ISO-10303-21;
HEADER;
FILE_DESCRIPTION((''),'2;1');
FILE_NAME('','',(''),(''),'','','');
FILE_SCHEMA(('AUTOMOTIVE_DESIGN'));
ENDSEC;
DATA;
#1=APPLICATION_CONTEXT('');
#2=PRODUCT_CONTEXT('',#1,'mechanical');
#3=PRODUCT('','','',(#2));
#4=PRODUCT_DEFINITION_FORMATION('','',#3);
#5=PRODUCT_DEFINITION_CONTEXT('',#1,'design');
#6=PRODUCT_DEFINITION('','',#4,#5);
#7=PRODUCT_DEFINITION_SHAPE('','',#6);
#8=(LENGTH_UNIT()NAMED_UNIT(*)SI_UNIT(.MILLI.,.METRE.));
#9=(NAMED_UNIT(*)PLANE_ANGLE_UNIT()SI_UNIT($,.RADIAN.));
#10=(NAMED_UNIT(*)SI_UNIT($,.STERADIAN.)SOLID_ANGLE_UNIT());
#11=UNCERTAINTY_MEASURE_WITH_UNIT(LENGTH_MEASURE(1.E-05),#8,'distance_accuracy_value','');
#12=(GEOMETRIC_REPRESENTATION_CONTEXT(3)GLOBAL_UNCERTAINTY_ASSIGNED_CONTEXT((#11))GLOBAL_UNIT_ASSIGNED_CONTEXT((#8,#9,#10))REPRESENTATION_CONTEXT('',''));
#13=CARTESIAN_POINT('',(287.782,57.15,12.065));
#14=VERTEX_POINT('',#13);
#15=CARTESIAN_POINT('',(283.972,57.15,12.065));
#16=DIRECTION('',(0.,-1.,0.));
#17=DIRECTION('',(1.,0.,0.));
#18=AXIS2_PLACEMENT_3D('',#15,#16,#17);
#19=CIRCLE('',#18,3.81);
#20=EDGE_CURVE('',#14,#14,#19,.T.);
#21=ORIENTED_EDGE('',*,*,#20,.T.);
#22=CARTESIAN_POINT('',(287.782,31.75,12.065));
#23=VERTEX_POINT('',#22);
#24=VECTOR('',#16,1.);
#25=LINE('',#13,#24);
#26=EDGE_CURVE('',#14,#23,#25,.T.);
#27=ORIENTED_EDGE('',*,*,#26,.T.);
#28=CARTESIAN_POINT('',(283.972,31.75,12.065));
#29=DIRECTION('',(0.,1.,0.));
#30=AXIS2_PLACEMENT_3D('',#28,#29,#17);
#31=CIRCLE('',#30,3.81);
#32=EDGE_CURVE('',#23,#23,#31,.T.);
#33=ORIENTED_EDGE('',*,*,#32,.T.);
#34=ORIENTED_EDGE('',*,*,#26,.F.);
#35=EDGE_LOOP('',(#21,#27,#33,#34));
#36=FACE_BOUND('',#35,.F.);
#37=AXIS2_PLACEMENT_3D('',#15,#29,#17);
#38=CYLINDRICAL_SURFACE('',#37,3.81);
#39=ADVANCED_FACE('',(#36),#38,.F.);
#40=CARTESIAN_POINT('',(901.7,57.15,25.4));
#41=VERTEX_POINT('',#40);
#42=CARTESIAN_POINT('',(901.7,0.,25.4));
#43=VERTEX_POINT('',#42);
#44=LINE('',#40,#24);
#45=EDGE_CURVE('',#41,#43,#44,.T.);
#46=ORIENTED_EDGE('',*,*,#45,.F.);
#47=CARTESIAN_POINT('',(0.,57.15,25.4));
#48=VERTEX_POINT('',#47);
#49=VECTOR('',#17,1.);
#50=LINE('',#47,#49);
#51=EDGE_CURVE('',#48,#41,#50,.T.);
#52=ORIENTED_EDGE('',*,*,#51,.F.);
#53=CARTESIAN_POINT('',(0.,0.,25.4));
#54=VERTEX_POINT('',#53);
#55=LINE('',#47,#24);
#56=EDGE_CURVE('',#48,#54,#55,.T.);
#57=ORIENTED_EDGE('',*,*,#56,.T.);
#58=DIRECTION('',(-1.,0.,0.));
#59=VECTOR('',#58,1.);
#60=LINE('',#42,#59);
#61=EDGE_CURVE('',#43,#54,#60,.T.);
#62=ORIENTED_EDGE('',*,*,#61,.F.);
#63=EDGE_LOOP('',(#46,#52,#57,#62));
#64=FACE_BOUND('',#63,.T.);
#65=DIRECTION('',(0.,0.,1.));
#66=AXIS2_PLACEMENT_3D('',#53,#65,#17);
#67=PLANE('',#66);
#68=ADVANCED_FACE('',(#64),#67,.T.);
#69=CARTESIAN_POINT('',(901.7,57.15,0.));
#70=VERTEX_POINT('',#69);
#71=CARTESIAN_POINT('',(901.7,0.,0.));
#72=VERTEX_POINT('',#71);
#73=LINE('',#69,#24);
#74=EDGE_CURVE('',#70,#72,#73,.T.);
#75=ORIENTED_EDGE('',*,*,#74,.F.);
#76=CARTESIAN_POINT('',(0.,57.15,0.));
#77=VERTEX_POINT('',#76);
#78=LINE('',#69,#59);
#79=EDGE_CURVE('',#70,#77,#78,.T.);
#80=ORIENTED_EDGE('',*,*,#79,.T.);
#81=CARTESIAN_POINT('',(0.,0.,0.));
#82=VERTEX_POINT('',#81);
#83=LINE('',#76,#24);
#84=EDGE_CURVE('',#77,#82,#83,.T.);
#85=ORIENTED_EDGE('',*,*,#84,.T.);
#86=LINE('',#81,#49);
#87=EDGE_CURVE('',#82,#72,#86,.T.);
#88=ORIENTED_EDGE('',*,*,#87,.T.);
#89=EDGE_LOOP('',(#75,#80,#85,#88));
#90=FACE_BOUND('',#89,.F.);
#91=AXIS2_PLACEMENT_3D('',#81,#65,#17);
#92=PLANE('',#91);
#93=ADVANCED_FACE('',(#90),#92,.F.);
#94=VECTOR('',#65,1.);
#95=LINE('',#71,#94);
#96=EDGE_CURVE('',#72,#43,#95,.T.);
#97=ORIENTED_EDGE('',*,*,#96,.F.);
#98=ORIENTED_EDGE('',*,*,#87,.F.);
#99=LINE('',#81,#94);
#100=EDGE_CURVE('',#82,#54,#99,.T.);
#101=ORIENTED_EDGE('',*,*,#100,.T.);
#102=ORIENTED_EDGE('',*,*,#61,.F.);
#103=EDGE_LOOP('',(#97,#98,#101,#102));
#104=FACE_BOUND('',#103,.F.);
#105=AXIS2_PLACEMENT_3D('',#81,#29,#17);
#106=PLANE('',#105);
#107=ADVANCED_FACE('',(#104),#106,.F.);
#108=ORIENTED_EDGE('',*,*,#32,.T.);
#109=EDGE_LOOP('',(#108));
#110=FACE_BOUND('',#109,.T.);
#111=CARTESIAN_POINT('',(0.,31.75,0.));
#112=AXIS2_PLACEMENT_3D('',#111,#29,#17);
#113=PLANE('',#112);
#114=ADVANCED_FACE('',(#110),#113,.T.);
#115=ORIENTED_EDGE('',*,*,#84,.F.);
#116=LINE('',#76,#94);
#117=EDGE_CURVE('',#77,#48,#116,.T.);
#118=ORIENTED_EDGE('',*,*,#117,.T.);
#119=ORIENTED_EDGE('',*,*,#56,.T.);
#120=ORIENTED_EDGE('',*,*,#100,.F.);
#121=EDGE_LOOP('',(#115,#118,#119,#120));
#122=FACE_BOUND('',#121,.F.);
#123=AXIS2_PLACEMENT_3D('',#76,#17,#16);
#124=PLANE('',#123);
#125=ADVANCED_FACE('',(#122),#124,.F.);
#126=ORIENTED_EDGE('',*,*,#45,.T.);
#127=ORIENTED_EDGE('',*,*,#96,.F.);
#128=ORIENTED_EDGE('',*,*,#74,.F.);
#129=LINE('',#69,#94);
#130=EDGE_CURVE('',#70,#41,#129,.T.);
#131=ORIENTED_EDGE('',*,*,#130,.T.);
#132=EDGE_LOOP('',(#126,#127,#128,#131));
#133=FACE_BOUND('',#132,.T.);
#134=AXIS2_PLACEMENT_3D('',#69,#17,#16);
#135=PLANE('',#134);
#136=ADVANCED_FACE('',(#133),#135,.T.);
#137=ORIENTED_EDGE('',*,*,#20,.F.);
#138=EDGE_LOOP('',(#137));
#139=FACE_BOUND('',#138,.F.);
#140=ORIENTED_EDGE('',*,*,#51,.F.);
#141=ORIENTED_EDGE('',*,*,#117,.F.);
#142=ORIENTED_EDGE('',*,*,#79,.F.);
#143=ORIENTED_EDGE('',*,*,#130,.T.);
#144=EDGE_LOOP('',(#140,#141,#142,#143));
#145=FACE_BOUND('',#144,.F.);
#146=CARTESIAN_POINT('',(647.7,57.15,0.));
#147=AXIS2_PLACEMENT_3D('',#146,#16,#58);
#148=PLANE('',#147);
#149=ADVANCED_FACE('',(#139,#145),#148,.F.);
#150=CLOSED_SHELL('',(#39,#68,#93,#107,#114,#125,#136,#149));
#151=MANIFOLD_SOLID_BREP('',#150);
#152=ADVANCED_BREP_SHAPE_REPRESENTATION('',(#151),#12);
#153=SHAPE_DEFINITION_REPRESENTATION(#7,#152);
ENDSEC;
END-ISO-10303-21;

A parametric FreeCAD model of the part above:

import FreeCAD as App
import Part
import Sketcher

V = App.Vector
Q = App.Units.Quantity


def add_polygon(sketch, points):
    """Adds a closed chain of lines whose ends are joined by coincident constraints."""
    first, n = sketch.GeometryCount, len(points)
    for a, b in zip(points, points[1:] + points[:1]):
        sketch.addGeometry(Part.LineSegment(App.Vector(*a, 0), App.Vector(*b, 0)), False)
    for i in range(n):
        sketch.addConstraint(Sketcher.Constraint("Coincident", first + i, 2, first + (i + 1) % n, 1))

doc = App.newDocument("Part")
params = doc.addObject("Spreadsheet::Sheet", "Params")
for row, (alias, value) in enumerate([
    ("sketch1_height", "2.25 in"),
    ("sketch1_width", "35.5 in"),
    ("pad1_length", "1 in"),
    ("sketch2_diameter", "0.3 in"),
    ("pocket1_length", "1 in"),
], start=1):
    params.set(f"A{row}", alias)
    params.set(f"B{row}", "=" + value)
    params.setAlias(f"B{row}", alias)

body = doc.addObject("PartDesign::Body", "Body")

# Sketch on XY plane
sketch1 = body.newObject("Sketcher::SketchObject", "Sketch")
sketch1.AttachmentSupport = (doc.getObject("XY_Plane"), [""])
sketch1.MapMode = "FlatFace"
add_polygon(sketch1, [(0, 57), (0, 0), (902, 0), (902, 57)])  # lines 0-3
sketch1.addConstraint([
    Sketcher.Constraint("Vertical", 0),
    Sketcher.Constraint("Horizontal", 1),
    Sketcher.Constraint("Vertical", 2),
    Sketcher.Constraint("Horizontal", 3),
    Sketcher.Constraint("Coincident", 0, 2, -1, 1),
    Sketcher.Constraint("DistanceY", 0, 2, 0, 1, Q("2.25 in")),
    Sketcher.Constraint("DistanceX", 1, 1, 1, 2, Q("35.5 in")),
])
sketch1.setExpression("Constraints[9]", "Params.sketch1_height")
sketch1.setExpression("Constraints[10]", "Params.sketch1_width")
pad1 = body.newObject("PartDesign::Pad", "Pad")
pad1.Profile = sketch1
pad1.setExpression("Length", "Params.pad1_length")

# Sketch on XZ plane
sketch2 = body.newObject("Sketcher::SketchObject", "Sketch001")
sketch2.AttachmentSupport = (doc.getObject("XZ_Plane"), [""])
sketch2.MapMode = "FlatFace"
sketch2.AttachmentOffset = App.Placement(V(0, 0, -2.25 * 25.4), App.Rotation())
sketch2.addGeometry(Part.Circle(V(284, 12.1, 0), V(0, 0, 1), 3.8), False)
sketch2.addConstraint([
    Sketcher.Constraint("Diameter", 0, Q("0.3 in")),
    Sketcher.Constraint("DistanceX", -1, 1, 0, 3, Q("11.18 in")),
    Sketcher.Constraint("DistanceY", -1, 1, 0, 3, Q("0.475 in")),
])
sketch2.setExpression("Constraints[0]", "Params.sketch2_diameter")
pocket1 = body.newObject("PartDesign::Pocket", "Pocket")
pocket1.Profile = sketch2
pocket1.setExpression("Length", "Params.pocket1_length")
pocket1.Reversed = True

doc.recompute()
